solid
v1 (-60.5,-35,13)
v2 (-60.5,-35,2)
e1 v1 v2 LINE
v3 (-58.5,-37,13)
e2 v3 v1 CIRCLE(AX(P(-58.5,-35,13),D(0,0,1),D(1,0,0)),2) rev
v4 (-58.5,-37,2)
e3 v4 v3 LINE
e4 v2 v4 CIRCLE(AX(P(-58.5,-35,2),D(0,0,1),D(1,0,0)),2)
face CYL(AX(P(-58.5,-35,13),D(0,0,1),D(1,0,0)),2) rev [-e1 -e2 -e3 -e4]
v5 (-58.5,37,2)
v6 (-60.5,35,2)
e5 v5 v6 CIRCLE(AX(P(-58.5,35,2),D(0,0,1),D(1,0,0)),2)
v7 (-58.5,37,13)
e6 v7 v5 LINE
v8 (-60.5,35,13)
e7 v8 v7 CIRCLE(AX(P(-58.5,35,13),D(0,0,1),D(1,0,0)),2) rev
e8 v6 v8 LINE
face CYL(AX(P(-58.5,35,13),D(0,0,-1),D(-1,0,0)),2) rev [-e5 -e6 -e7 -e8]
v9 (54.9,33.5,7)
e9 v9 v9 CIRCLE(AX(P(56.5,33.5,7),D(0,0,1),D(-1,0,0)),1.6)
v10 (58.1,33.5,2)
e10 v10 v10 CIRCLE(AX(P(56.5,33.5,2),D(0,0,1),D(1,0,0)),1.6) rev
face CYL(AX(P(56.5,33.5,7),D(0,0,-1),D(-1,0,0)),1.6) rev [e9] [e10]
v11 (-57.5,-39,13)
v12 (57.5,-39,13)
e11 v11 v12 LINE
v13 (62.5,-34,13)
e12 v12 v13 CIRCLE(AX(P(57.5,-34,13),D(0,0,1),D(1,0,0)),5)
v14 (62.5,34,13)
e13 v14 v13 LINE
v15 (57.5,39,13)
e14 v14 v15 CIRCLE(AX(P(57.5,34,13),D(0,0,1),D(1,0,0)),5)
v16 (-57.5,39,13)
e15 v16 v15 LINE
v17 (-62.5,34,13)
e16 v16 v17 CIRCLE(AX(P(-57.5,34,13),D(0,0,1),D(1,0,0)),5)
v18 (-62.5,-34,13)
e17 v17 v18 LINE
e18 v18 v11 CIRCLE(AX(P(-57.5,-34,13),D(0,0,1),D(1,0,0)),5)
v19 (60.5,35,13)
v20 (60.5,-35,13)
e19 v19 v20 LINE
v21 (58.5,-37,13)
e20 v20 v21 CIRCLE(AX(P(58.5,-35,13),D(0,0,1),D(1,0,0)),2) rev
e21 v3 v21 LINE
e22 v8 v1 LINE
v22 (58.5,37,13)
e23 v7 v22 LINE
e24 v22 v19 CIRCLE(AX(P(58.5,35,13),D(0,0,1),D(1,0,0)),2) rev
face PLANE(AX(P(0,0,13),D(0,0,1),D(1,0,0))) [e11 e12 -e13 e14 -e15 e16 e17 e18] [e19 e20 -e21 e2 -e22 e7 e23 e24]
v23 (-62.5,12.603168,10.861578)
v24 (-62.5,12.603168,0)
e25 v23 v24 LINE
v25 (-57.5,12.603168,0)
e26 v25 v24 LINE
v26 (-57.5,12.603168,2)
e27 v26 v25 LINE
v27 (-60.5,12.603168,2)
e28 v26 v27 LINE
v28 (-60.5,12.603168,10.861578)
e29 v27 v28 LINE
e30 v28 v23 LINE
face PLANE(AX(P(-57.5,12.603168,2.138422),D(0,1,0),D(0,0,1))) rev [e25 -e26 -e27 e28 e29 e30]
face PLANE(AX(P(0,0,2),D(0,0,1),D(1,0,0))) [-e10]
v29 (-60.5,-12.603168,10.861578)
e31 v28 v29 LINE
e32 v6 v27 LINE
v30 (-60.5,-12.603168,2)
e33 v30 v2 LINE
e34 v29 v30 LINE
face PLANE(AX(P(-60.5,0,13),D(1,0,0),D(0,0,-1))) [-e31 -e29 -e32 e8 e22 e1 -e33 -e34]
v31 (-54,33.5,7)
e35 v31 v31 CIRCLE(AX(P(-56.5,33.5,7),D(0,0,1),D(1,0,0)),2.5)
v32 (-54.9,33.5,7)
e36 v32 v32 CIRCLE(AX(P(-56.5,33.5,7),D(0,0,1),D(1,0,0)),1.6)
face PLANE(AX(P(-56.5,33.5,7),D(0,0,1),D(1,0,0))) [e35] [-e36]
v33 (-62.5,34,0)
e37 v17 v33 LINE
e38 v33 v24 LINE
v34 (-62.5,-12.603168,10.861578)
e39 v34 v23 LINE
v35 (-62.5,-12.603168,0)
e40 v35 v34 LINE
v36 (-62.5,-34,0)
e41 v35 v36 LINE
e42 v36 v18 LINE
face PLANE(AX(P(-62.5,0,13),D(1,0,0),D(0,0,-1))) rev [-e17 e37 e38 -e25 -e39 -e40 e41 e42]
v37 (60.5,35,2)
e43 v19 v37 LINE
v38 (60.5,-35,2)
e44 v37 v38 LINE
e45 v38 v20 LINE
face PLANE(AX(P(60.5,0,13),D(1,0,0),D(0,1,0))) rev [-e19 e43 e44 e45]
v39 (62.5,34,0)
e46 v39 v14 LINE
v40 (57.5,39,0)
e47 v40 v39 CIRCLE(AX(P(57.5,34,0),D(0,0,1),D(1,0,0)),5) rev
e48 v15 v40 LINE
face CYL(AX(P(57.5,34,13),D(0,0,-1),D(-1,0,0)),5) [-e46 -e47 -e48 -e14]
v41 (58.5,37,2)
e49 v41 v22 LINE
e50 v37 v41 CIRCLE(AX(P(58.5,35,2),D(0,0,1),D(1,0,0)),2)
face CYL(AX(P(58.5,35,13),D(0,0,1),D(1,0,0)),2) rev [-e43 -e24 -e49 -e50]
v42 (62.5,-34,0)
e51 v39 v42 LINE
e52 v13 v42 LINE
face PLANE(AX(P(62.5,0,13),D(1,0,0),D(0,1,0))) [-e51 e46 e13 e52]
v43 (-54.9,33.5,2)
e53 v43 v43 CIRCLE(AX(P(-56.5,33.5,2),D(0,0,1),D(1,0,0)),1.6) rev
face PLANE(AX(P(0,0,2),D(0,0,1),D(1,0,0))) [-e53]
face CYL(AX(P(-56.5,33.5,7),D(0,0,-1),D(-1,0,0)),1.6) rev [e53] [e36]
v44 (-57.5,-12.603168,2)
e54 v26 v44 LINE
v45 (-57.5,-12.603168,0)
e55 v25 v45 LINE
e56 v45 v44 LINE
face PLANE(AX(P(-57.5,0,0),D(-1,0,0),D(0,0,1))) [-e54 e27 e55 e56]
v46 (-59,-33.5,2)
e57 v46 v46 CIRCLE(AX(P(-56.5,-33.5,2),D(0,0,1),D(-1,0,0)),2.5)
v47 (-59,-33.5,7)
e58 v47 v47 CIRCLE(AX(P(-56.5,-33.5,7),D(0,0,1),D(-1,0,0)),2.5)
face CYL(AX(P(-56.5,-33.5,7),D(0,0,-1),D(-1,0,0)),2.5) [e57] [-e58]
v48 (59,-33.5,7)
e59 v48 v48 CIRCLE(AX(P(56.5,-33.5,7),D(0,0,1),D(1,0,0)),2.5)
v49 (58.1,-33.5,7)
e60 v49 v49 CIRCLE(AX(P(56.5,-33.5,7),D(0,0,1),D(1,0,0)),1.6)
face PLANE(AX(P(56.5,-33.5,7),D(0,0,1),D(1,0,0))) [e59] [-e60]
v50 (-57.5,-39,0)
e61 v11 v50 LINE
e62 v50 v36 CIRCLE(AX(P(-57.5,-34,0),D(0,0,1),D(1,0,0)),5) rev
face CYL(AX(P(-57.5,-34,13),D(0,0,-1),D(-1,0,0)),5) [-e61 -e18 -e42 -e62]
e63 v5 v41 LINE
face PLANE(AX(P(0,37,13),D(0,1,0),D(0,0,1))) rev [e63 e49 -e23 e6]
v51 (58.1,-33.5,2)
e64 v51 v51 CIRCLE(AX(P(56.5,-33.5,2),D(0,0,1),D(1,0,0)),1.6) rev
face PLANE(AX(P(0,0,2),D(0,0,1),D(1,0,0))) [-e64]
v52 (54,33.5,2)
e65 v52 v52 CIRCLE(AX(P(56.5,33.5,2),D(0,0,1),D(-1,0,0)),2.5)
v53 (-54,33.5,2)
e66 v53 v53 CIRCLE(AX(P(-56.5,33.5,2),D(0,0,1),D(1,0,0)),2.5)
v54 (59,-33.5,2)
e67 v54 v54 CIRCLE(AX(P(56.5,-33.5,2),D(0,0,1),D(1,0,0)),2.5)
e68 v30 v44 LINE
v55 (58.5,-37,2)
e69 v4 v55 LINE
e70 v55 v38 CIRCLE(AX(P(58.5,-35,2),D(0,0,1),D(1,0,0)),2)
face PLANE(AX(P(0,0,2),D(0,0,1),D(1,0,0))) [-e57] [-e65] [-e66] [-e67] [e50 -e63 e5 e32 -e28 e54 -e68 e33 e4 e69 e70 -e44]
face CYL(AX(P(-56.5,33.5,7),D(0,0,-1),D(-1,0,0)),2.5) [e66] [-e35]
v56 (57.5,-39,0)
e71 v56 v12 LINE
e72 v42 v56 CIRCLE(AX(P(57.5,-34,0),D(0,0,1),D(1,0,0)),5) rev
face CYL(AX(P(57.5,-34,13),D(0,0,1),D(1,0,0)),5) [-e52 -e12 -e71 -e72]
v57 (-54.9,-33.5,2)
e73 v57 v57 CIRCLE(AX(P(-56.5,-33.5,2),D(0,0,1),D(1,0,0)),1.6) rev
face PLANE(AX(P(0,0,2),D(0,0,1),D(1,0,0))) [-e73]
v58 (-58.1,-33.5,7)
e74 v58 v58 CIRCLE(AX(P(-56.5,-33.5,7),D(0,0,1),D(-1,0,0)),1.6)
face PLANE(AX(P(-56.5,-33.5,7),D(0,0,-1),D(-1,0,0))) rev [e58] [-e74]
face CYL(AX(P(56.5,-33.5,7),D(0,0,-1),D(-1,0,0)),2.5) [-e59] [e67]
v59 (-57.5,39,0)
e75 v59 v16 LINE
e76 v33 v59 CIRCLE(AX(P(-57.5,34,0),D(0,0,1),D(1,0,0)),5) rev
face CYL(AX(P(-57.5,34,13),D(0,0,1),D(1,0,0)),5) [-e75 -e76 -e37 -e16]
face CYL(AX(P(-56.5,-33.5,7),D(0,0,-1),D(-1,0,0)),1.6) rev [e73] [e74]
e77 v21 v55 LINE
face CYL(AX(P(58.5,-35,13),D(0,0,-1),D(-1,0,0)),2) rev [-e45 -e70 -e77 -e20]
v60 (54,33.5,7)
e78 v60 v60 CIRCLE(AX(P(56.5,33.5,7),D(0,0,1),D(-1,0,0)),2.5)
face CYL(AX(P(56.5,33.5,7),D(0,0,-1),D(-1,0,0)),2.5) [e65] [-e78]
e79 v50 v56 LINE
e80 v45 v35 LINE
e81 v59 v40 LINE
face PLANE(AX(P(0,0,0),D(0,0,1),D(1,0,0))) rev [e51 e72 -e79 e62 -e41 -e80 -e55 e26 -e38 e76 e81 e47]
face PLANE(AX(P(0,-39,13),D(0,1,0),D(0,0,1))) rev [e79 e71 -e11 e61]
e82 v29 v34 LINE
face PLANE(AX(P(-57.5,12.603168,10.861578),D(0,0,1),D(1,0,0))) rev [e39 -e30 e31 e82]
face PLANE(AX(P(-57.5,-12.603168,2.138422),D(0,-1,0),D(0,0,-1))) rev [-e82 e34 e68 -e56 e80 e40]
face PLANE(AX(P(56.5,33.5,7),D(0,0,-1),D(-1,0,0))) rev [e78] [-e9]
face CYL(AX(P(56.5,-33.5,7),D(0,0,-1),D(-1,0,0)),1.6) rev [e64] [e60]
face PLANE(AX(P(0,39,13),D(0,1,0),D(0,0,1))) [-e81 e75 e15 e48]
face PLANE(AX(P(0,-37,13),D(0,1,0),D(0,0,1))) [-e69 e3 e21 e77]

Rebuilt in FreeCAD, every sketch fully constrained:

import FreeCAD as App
import Part
import Sketcher


def edges_at(feature, points):
    """Names of the edges that pass closest to the given points."""
    edges = feature.Shape.Edges
    near = lambda p: min(range(len(edges)), key=lambda i: edges[i].distToShape(Part.Vertex(*p))[0])
    return sorted({f"Edge{near(p) + 1}" for p in points})


def faces_at(feature, points):
    """Names of the faces that lie closest to the given points."""
    faces = feature.Shape.Faces
    near = lambda p: min(range(len(faces)), key=lambda i: faces[i].distToShape(Part.Vertex(*p))[0])
    return sorted({f"Face{near(p) + 1}" for p in points})

doc = App.newDocument("Part")
body = doc.addObject("PartDesign::Body", "Body")

# Sketch on XY plane
sketch1 = doc.addObject("Sketcher::SketchObject", "Sketch")
body.addObject(sketch1)
sketch1.AttachmentSupport = (doc.XY_Plane, [""])
sketch1.MapMode = "FlatFace"
sketch1.addGeometry([
    Part.LineSegment(App.Vector(-62, 39, 0), App.Vector(-62, -39, 0)),
    Part.LineSegment(App.Vector(-62, -39, 0), App.Vector(62, -39, 0)),
    Part.LineSegment(App.Vector(62, -39, 0), App.Vector(62, 39, 0)),
    Part.LineSegment(App.Vector(62, 39, 0), App.Vector(-62, 39, 0)),
], False)
sketch1.addConstraint([
    Sketcher.Constraint("Coincident", 0, 2, 1, 1),
    Sketcher.Constraint("Coincident", 1, 2, 2, 1),
    Sketcher.Constraint("Coincident", 2, 2, 3, 1),
    Sketcher.Constraint("Coincident", 3, 2, 0, 1),
    Sketcher.Constraint("Vertical", 0),
    Sketcher.Constraint("Horizontal", 1),
    Sketcher.Constraint("Vertical", 2),
    Sketcher.Constraint("Horizontal", 3),
    Sketcher.Constraint("Symmetric", 0, 2, 2, 2, -1, 1),
    Sketcher.Constraint("DistanceX", 1, 1, 1, 2, 125.0),
    Sketcher.Constraint("DistanceY", 0, 2, 0, 1, 78.0),
])
pad1 = doc.addObject("PartDesign::Pad", "Pad")
body.addObject(pad1)
pad1.Profile = sketch1
pad1.Length = 13
doc.recompute()

thickness = doc.addObject("PartDesign::Thickness", "Thickness")
body.addObject(thickness)
thickness.Base = (pad1, faces_at(pad1, [(0, 0, 13)]))
thickness.Value = 2
thickness.Reversed = True
thickness.Join = "Intersection"

# Sketch on XY plane
sketch2 = doc.addObject("Sketcher::SketchObject", "Sketch001")
body.addObject(sketch2)
sketch2.AttachmentSupport = (doc.XY_Plane, [""])
sketch2.MapMode = "FlatFace"
sketch2.AttachmentOffset = App.Placement(App.Vector(0, 0, 2), App.Rotation())
sketch2.addGeometry([
    Part.Circle(App.Vector(-56.5, 33.5, 0), App.Vector(0, 0, 1), 2.5),  # 0
    Part.Circle(App.Vector(-56.5, 33.5, 0), App.Vector(0, 0, 1), 1.6),  # 1
    Part.Circle(App.Vector(56.5, 33.5, 0), App.Vector(0, 0, 1), 2.5),  # 2
    Part.Circle(App.Vector(56.5, 33.5, 0), App.Vector(0, 0, 1), 1.6),  # 3
    Part.Circle(App.Vector(56.5, -33.5, 0), App.Vector(0, 0, 1), 2.5),  # 4
    Part.Circle(App.Vector(56.5, -33.5, 0), App.Vector(0, 0, 1), 1.6),  # 5
    Part.Circle(App.Vector(-56.5, -33.5, 0), App.Vector(0, 0, 1), 2.5),  # 6
    Part.Circle(App.Vector(-56.5, -33.5, 0), App.Vector(0, 0, 1), 1.6),  # 7
], False)
sketch2.addConstraint([
    Sketcher.Constraint("Coincident", 1, 3, 0, 3),
    Sketcher.Constraint("Coincident", 3, 3, 2, 3),
    Sketcher.Constraint("Coincident", 5, 3, 4, 3),
    Sketcher.Constraint("Coincident", 7, 3, 6, 3),
    Sketcher.Constraint("Equal", 0, 2),
    Sketcher.Constraint("Equal", 1, 3),
    Sketcher.Constraint("Equal", 2, 4),
    Sketcher.Constraint("Equal", 3, 5),
    Sketcher.Constraint("Equal", 4, 6),
    Sketcher.Constraint("Equal", 5, 7),
    Sketcher.Constraint("Symmetric", 0, 3, 4, 3, -1, 1),
    Sketcher.Constraint("Symmetric", 2, 3, 6, 3, -1, 1),
    Sketcher.Constraint("Symmetric", 0, 3, 2, 3, -2),
    Sketcher.Constraint("Diameter", 0, 5.0),
    Sketcher.Constraint("Diameter", 1, 3.2),
    Sketcher.Constraint("DistanceX", 0, 3, 2, 3, 113.0),
    Sketcher.Constraint("DistanceY", 4, 3, 2, 3, 67.0),
])
pad2 = doc.addObject("PartDesign::Pad", "Pad001")
body.addObject(pad2)
pad2.Profile = sketch2
pad2.Length = 5

# Sketch on YZ plane
sketch3 = doc.addObject("Sketcher::SketchObject", "Sketch002")
body.addObject(sketch3)
sketch3.AttachmentSupport = (doc.YZ_Plane, [""])
sketch3.MapMode = "FlatFace"
sketch3.AttachmentOffset = App.Placement(App.Vector(0, 0, -62.5), App.Rotation())
sketch3.addGeometry([
    Part.LineSegment(App.Vector(13, 11, 0), App.Vector(13, 0, 0)),
    Part.LineSegment(App.Vector(13, 0, 0), App.Vector(-13, 0, 0)),
    Part.LineSegment(App.Vector(-13, 0, 0), App.Vector(-13, 11, 0)),
    Part.LineSegment(App.Vector(-13, 11, 0), App.Vector(13, 11, 0)),
], False)
sketch3.addConstraint([
    Sketcher.Constraint("Coincident", 0, 2, 1, 1),
    Sketcher.Constraint("Coincident", 1, 2, 2, 1),
    Sketcher.Constraint("Coincident", 2, 2, 3, 1),
    Sketcher.Constraint("Coincident", 3, 2, 0, 1),
    Sketcher.Constraint("Vertical", 0),
    Sketcher.Constraint("Horizontal", 1),
    Sketcher.Constraint("Vertical", 2),
    Sketcher.Constraint("Horizontal", 3),
    Sketcher.Constraint("Symmetric", 0, 2, 1, 2, -1, 1),
    Sketcher.Constraint("DistanceX", 1, 2, 1, 1, 25.206337),
    Sketcher.Constraint("DistanceY", 0, 2, 0, 1, 10.861578),
])
pocket1 = doc.addObject("PartDesign::Pocket", "Pocket")
body.addObject(pocket1)
pocket1.Profile = sketch3
pocket1.Length = 5
pocket1.Reversed = True
doc.recompute()

fillet = doc.addObject("PartDesign::Fillet", "Fillet")
body.addObject(fillet)
fillet.Base = (pocket1, edges_at(pocket1, [
    (62.5, -39, 6.5),
    (-62.5, -39, 6.5),
    (-62.5, 39, 6.5),
    (62.5, 39, 6.5),
]))
fillet.Radius = 5
doc.recompute()

fillet2 = doc.addObject("PartDesign::Fillet", "Fillet001")
body.addObject(fillet2)
fillet2.Base = (fillet, edges_at(fillet, [
    (-60.5, 37, 7.5),
    (60.5, 37, 7.5),
    (60.5, -37, 7.5),
    (-60.5, -37, 7.5),
]))
fillet2.Radius = 2

doc.recompute()
